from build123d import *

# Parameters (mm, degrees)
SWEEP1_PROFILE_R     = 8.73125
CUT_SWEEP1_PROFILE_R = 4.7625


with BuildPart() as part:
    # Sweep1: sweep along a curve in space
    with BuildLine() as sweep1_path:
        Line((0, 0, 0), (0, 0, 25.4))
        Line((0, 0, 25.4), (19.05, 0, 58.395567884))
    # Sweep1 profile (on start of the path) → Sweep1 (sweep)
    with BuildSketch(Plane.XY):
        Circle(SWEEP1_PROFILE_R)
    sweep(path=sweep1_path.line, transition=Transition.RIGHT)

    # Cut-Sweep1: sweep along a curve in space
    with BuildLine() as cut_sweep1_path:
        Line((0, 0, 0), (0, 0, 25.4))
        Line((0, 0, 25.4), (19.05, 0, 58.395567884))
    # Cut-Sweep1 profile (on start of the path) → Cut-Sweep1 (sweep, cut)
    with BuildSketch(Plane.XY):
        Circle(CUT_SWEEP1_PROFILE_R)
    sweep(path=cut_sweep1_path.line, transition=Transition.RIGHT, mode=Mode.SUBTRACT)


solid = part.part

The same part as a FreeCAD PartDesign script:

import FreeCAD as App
import Part
import Sketcher

V = App.Vector
Q = App.Units.Quantity

doc = App.newDocument("Part")
body = doc.addObject("PartDesign::Body", "Body")

# Sketch on XY plane
sketch1 = body.newObject("Sketcher::SketchObject", "Sketch")
sketch1.AttachmentSupport = (doc.getObject("XY_Plane"), [""])
sketch1.MapMode = "FlatFace"
sketch1.addGeometry(Part.Circle(V(0, 0, 0), V(0, 0, 1), 9), False)
sketch1.addConstraint(Sketcher.Constraint("Coincident", 0, 3, -1, 1))
sketch1.addConstraint(Sketcher.Constraint("Diameter", 0, Q("0.6875 in")))

# Sketch on XZ plane
sketch2 = body.newObject("Sketcher::SketchObject", "Sketch001")
sketch2.AttachmentSupport = (doc.getObject("XZ_Plane"), [""])
sketch2.MapMode = "FlatFace"
sketch2.addGeometry(Part.LineSegment(V(0, 0, 0), V(0, 25, 0)), False)
sketch2.addGeometry(Part.LineSegment(V(0, 25, 0), V(19, 58, 0)), False)
sketch2.addConstraint(Sketcher.Constraint("Coincident", 0, 2, 1, 1))
sketch2.addConstraint(Sketcher.Constraint("Vertical", 0))
sketch2.addConstraint(Sketcher.Constraint("Coincident", 0, 1, -1, 1))
sketch2.addConstraint(Sketcher.Constraint("DistanceY", 0, 1, 0, 2, Q("1 in")))
sketch2.addConstraint(Sketcher.Constraint("Angle", 1, Q("60 deg")))
sketch2.addConstraint(Sketcher.Constraint("Distance", 1, Q("1.5 in")))
doc.recompute()

additivepipe = body.newObject("PartDesign::AdditivePipe", "AdditivePipe")
additivepipe.Profile = sketch1
additivepipe.Spine = (sketch2, ["Edge1", "Edge2"])
additivepipe.Transition = "Right corner"

# Sketch on XY plane
sketch3 = body.newObject("Sketcher::SketchObject", "Sketch002")
sketch3.AttachmentSupport = (doc.getObject("XY_Plane"), [""])
sketch3.MapMode = "FlatFace"
sketch3.addGeometry(Part.Circle(V(0, 0, 0), V(0, 0, 1), 4.8), False)
sketch3.addConstraint(Sketcher.Constraint("Coincident", 0, 3, -1, 1))
sketch3.addConstraint(Sketcher.Constraint("Diameter", 0, Q("0.375 in")))

# Sketch on XZ plane
sketch4 = body.newObject("Sketcher::SketchObject", "Sketch003")
sketch4.AttachmentSupport = (doc.getObject("XZ_Plane"), [""])
sketch4.MapMode = "FlatFace"
sketch4.addGeometry(Part.LineSegment(V(0, 0, 0), V(0, 25, 0)), False)
sketch4.addGeometry(Part.LineSegment(V(0, 25, 0), V(19, 58, 0)), False)
sketch4.addConstraint(Sketcher.Constraint("Coincident", 0, 2, 1, 1))
sketch4.addConstraint(Sketcher.Constraint("Vertical", 0))
sketch4.addConstraint(Sketcher.Constraint("Coincident", 0, 1, -1, 1))
sketch4.addConstraint(Sketcher.Constraint("DistanceY", 0, 1, 0, 2, Q("1 in")))
sketch4.addConstraint(Sketcher.Constraint("Angle", 1, Q("60 deg")))
sketch4.addConstraint(Sketcher.Constraint("Distance", 1, Q("1.5 in")))
doc.recompute()

subtractivepipe = body.newObject("PartDesign::SubtractivePipe", "SubtractivePipe")
subtractivepipe.Profile = sketch3
subtractivepipe.Spine = (sketch4, ["Edge1", "Edge2"])
subtractivepipe.Transition = "Right corner"

doc.recompute()
